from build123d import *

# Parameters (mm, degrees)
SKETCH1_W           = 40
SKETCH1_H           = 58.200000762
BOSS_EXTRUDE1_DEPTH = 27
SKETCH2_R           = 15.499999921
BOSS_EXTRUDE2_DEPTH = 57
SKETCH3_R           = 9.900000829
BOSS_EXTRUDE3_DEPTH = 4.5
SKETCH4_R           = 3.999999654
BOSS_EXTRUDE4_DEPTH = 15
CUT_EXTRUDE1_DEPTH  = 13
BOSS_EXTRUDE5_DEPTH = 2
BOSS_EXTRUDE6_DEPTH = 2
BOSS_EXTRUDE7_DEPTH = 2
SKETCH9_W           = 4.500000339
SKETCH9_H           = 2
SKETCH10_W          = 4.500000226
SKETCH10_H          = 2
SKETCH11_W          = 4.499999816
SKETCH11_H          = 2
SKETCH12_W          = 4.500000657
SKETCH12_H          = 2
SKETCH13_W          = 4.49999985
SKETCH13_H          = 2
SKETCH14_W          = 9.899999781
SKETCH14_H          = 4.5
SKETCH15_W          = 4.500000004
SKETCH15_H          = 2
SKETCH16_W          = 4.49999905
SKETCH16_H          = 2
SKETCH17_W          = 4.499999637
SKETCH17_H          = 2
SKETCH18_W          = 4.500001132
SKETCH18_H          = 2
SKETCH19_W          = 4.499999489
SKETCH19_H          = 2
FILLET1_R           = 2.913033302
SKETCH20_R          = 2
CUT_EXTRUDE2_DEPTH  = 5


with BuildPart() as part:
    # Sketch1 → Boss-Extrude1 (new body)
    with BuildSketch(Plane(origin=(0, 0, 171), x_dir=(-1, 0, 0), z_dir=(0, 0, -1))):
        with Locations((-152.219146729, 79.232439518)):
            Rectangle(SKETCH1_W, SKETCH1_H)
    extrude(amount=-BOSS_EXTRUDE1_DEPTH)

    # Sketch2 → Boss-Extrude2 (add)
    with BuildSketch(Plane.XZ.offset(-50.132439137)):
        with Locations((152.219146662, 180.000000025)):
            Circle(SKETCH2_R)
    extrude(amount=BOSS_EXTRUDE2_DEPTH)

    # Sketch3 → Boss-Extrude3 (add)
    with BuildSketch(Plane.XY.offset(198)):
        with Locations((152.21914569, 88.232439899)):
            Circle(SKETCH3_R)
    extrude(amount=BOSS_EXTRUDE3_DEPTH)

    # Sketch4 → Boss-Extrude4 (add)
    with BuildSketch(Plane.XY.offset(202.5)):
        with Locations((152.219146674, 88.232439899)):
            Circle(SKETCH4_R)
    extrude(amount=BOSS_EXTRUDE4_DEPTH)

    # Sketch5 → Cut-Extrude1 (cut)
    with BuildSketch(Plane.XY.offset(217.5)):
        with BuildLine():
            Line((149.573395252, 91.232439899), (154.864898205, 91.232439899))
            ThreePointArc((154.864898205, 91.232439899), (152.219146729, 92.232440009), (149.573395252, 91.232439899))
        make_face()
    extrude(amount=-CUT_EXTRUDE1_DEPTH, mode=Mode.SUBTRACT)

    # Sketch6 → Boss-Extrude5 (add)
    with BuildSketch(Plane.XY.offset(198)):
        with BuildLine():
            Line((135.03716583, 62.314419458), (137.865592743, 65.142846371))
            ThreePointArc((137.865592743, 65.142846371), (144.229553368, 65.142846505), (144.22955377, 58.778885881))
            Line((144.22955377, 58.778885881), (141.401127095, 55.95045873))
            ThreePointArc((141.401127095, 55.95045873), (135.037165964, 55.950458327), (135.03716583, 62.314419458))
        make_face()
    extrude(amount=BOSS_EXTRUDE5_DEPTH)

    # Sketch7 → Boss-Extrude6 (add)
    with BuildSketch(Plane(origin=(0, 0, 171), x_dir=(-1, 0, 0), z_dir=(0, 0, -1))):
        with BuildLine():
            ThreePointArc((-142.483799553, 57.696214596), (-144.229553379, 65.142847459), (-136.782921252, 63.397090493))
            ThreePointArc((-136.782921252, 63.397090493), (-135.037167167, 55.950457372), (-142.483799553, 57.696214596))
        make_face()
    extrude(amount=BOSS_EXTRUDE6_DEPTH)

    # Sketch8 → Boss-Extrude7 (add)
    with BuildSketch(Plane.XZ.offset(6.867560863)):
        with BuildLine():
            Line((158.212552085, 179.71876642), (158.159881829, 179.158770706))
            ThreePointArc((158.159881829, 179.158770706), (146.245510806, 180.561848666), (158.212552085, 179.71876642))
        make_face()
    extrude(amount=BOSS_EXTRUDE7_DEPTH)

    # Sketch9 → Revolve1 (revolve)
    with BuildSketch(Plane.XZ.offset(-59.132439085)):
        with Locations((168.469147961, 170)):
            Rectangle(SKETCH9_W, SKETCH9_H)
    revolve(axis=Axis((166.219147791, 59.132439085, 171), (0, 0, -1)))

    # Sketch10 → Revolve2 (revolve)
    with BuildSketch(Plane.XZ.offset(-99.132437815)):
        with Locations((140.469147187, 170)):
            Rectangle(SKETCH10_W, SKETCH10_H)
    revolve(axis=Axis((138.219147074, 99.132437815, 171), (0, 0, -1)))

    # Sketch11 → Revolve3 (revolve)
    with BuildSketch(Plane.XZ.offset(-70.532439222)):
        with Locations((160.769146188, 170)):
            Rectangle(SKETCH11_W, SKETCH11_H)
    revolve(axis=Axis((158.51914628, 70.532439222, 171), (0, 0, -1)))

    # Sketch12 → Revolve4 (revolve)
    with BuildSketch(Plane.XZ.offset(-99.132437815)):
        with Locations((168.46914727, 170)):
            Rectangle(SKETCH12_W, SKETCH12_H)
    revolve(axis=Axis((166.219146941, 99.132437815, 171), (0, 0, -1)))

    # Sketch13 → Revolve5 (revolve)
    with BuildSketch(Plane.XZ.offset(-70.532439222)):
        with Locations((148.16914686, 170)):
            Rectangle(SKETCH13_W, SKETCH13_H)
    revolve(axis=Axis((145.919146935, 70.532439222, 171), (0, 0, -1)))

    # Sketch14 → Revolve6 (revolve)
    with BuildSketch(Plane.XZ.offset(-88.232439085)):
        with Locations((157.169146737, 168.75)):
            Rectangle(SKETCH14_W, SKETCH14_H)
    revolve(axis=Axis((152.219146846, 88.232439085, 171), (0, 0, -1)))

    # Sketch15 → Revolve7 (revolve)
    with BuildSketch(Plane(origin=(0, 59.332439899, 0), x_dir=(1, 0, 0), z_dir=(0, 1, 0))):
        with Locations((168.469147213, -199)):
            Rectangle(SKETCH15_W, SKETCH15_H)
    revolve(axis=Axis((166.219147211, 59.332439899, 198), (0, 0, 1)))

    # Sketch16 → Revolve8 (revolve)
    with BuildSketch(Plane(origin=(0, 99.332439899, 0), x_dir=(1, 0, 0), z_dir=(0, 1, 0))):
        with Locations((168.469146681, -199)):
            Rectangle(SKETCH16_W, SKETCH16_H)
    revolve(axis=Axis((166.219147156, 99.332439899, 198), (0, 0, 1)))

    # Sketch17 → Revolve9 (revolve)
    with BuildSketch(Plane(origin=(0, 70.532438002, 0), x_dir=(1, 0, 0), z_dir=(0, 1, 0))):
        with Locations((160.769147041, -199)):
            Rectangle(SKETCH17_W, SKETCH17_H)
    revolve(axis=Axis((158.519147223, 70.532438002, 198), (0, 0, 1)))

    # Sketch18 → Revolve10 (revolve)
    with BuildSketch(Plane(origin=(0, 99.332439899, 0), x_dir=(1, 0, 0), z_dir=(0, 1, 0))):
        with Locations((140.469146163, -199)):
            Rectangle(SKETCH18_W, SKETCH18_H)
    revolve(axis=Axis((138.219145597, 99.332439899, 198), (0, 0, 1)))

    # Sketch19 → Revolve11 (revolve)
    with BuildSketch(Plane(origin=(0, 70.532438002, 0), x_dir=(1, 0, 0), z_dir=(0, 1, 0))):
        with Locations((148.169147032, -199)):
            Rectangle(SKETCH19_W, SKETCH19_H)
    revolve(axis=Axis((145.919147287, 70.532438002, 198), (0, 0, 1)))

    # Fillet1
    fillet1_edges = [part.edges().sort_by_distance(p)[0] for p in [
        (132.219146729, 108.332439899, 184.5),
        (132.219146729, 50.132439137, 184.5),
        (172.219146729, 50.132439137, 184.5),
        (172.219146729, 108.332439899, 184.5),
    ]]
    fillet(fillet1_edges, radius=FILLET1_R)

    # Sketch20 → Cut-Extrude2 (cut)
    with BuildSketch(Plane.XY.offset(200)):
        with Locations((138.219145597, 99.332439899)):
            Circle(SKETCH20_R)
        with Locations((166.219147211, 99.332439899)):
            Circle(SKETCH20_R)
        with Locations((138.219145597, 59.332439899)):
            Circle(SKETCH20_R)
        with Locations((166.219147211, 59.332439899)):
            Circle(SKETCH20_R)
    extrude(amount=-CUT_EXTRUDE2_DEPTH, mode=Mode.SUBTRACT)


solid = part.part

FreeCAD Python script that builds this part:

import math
import FreeCAD as App
import Part
import Sketcher
Q = App.Units.Quantity


def edges_at(feature, points):
    """Names of the edges that pass closest to the given points."""
    edges = feature.Shape.Edges
    near = lambda p: min(range(len(edges)), key=lambda i: edges[i].distToShape(Part.Vertex(*p))[0])
    return sorted({f"Edge{near(p) + 1}" for p in points})


def add_polygon(sketch, points):
    """Adds a closed chain of lines whose ends are joined by coincident constraints."""
    first, n = sketch.GeometryCount, len(points)
    for a, b in zip(points, points[1:] + points[:1]):
        sketch.addGeometry(Part.LineSegment(App.Vector(*a, 0), App.Vector(*b, 0)), False)
    for i in range(n):
        sketch.addConstraint(Sketcher.Constraint("Coincident", first + i, 2, first + (i + 1) % n, 1))

doc = App.newDocument("Part")
params = doc.addObject("Spreadsheet::Sheet", "Params")
for row, (alias, value) in enumerate([
    ("sketch1_width", "40 mm"),
    ("sketch1_height", "58.200001 mm"),
    ("pad1_length", "27 mm"),
    ("sketch2_diameter", "31 mm"),
    ("pad2_length", "57 mm"),
    ("sketch3_diameter", "19.800002 mm"),
    ("pad3_length", "4.5 mm"),
    ("sketch4_diameter", "7.999999 mm"),
    ("pad4_length", "15 mm"),
    ("sketch5_radius", "4 mm"),
    ("pocket1_length", "13 mm"),
    ("sketch6_radius", "4.5 mm"),
    ("sketch6_length", "4 mm"),
    ("pad5_length", "2 mm"),
    ("sketch7_radius", "4.5 mm"),
    ("pad6_length", "2 mm"),
    ("sketch8_radius", "6 mm"),
    ("pad7_length", "2 mm"),
    ("sketch9_height", "2 mm"),
    ("sketch9_width", "4.5 mm"),
    ("revolution_angle", "360 deg"),
    ("sketch10_height", "2 mm"),
    ("sketch10_width", "4.5 mm"),
    ("revolution2_angle", "360 deg"),
    ("sketch11_height", "2 mm"),
    ("sketch11_width", "4.5 mm"),
    ("revolution3_angle", "360 deg"),
    ("sketch12_height", "2 mm"),
    ("sketch12_width", "4.500001 mm"),
    ("revolution4_angle", "360 deg"),
    ("sketch13_height", "2 mm"),
    ("sketch13_width", "4.5 mm"),
    ("revolution5_angle", "360 deg"),
    ("sketch14_width", "9.9 mm"),
    ("sketch14_height", "4.5 mm"),
    ("revolution6_angle", "360 deg"),
    ("sketch15_height", "2 mm"),
    ("sketch15_width", "4.5 mm"),
    ("revolution7_angle", "360 deg"),
    ("sketch16_height", "2 mm"),
    ("sketch16_width", "4.499999 mm"),
    ("revolution8_angle", "360 deg"),
    ("sketch17_height", "2 mm"),
    ("sketch17_width", "4.5 mm"),
    ("revolution9_angle", "360 deg"),
    ("sketch18_height", "2 mm"),
    ("sketch18_width", "4.500001 mm"),
    ("revolution10_angle", "360 deg"),
    ("sketch19_height", "2 mm"),
    ("sketch19_width", "4.499999 mm"),
    ("revolution11_angle", "360 deg"),
    ("fillet_radius", "2.913033 mm"),
    ("sketch20_diameter", "4 mm"),
    ("pocket2_length", "5 mm"),
], start=1):
    params.set(f"A{row}", alias)
    params.set(f"B{row}", "=" + value)
    params.setAlias(f"B{row}", alias)

body = doc.addObject("PartDesign::Body", "Body")

sketch1 = body.newObject("Sketcher::SketchObject", "Sketch")
sketch1.AttachmentSupport = (doc.getObject("XY_Plane"), [""])
sketch1.MapMode = "FlatFace"
sketch1.AttachmentOffset = App.Placement(App.Vector(0, 0, 171), App.Rotation())
add_polygon(sketch1, [(172, 108), (172, 50), (132, 50), (132, 108)])
sketch1.addConstraint([
    Sketcher.Constraint("Vertical", 0),
    Sketcher.Constraint("Horizontal", 1),
    Sketcher.Constraint("Vertical", 2),
    Sketcher.Constraint("Horizontal", 3),
    Sketcher.Constraint("DistanceX", 1, 2, 1, 1, Q("40 mm")),
    Sketcher.Constraint("DistanceY", 0, 2, 0, 1, Q("58.200001 mm")),
    Sketcher.Constraint("DistanceY", -1, 1, 0, 2, Q("50.132439 mm")),
    Sketcher.Constraint("DistanceX", -1, 1, 0, 2, Q("172.219147 mm")),
])
sketch1.setExpression("Constraints[8]", "Params.sketch1_width")
sketch1.setExpression("Constraints[9]", "Params.sketch1_height")
pad1 = body.newObject("PartDesign::Pad", "Pad")
pad1.Profile = sketch1
pad1.setExpression("Length", "Params.pad1_length")

sketch2 = body.newObject("Sketcher::SketchObject", "Sketch001")
sketch2.AttachmentSupport = (doc.getObject("XZ_Plane"), [""])
sketch2.MapMode = "FlatFace"
sketch2.AttachmentOffset = App.Placement(App.Vector(0, 0, -50.132439), App.Rotation())
sketch2.addGeometry(Part.Circle(App.Vector(152, 180, 0), App.Vector(0, 0, 1), 15), False)
sketch2.addConstraint([
    Sketcher.Constraint("Diameter", 0, Q("31 mm")),
    Sketcher.Constraint("DistanceY", -1, 1, 0, 3, Q("180 mm")),
    Sketcher.Constraint("DistanceX", -1, 1, 0, 3, Q("152.219147 mm")),
])
sketch2.setExpression("Constraints[0]", "Params.sketch2_diameter")
pad2 = body.newObject("PartDesign::Pad", "Pad001")
pad2.Profile = sketch2
pad2.setExpression("Length", "Params.pad2_length")

sketch3 = body.newObject("Sketcher::SketchObject", "Sketch002")
sketch3.AttachmentSupport = (doc.getObject("XY_Plane"), [""])
sketch3.MapMode = "FlatFace"
sketch3.AttachmentOffset = App.Placement(App.Vector(0, 0, 198), App.Rotation())
sketch3.addGeometry(Part.Circle(App.Vector(152, 88, 0), App.Vector(0, 0, 1), 10), False)
sketch3.addConstraint([
    Sketcher.Constraint("Diameter", 0, Q("19.800002 mm")),
    Sketcher.Constraint("DistanceY", -1, 1, 0, 3, Q("88.23244 mm")),
    Sketcher.Constraint("DistanceX", -1, 1, 0, 3, Q("152.219146 mm")),
])
sketch3.setExpression("Constraints[0]", "Params.sketch3_diameter")
pad3 = body.newObject("PartDesign::Pad", "Pad002")
pad3.Profile = sketch3
pad3.setExpression("Length", "Params.pad3_length")

sketch4 = body.newObject("Sketcher::SketchObject", "Sketch003")
sketch4.AttachmentSupport = (doc.getObject("XY_Plane"), [""])
sketch4.MapMode = "FlatFace"
sketch4.AttachmentOffset = App.Placement(App.Vector(0, 0, 202.5), App.Rotation())
sketch4.addGeometry(Part.Circle(App.Vector(152.2, 88.2, 0), App.Vector(0, 0, 1), 4), False)
sketch4.addConstraint([
    Sketcher.Constraint("Diameter", 0, Q("7.999999 mm")),
    Sketcher.Constraint("DistanceY", -1, 1, 0, 3, Q("88.23244 mm")),
    Sketcher.Constraint("DistanceX", -1, 1, 0, 3, Q("152.219147 mm")),
])
sketch4.setExpression("Constraints[0]", "Params.sketch4_diameter")
pad4 = body.newObject("PartDesign::Pad", "Pad003")
pad4.Profile = sketch4
pad4.setExpression("Length", "Params.pad4_length")

sketch5 = body.newObject("Sketcher::SketchObject", "Sketch004")
sketch5.AttachmentSupport = (doc.getObject("XY_Plane"), [""])
sketch5.MapMode = "FlatFace"
sketch5.AttachmentOffset = App.Placement(App.Vector(0, 0, 217.5), App.Rotation())
sketch5.addGeometry([
    Part.LineSegment(App.Vector(149.6, 91.2, 0), App.Vector(154.9, 91.2, 0)),
    Part.ArcOfCircle(Part.Circle(App.Vector(152.2, 88.2, 0), App.Vector(0, 0, 1), 4), math.radians(49), math.radians(131)),
], False)
sketch5.addConstraint([
    Sketcher.Constraint("Coincident", 0, 1, 1, 2),
    Sketcher.Constraint("Coincident", 1, 1, 0, 2),
    Sketcher.Constraint("Horizontal", 0),
    Sketcher.Constraint("Radius", 1, Q("4 mm")),
    Sketcher.Constraint("DistanceY", 1, 3, 0, 1, Q("3 mm")),
    Sketcher.Constraint("DistanceX", -1, 1, 1, 1, Q("154.864898 mm")),
    Sketcher.Constraint("DistanceY", -1, 1, 1, 3, Q("88.23244 mm")),
])
sketch5.setExpression("Constraints[3]", "Params.sketch5_radius")
pocket1 = body.newObject("PartDesign::Pocket", "Pocket")
pocket1.Profile = sketch5
pocket1.setExpression("Length", "Params.pocket1_length")

sketch6 = body.newObject("Sketcher::SketchObject", "Sketch005")
sketch6.AttachmentSupport = (doc.getObject("XY_Plane"), [""])
sketch6.MapMode = "FlatFace"
sketch6.AttachmentOffset = App.Placement(App.Vector(0, 0, 198), App.Rotation())
sketch6.addGeometry([
    Part.LineSegment(App.Vector(137.9, 65.1, 0), App.Vector(135, 62.3, 0)),
    Part.ArcOfCircle(Part.Circle(App.Vector(138.2, 59.1, 0), App.Vector(0, 0, 1), 4.5), math.radians(135), math.radians(315)),
    Part.LineSegment(App.Vector(141.4, 56, 0), App.Vector(144.2, 58.8, 0)),
    Part.ArcOfCircle(Part.Circle(App.Vector(141, 62, 0), App.Vector(0, 0, 1), 4.5), math.radians(-45), math.radians(135)),
], False)
sketch6.addConstraint([
    Sketcher.Constraint("Tangent", 0, 2, 1, 1),
    Sketcher.Constraint("Tangent", 1, 2, 2, 1),
    Sketcher.Constraint("Tangent", 2, 2, 3, 1),
    Sketcher.Constraint("Tangent", 3, 2, 0, 1),
    Sketcher.Constraint("Equal", 1, 3),
    Sketcher.Constraint("Radius", 1, Q("4.5 mm")),
    Sketcher.Constraint("Angle", 0, Q("-135 deg")),
    Sketcher.Constraint("Distance", 0, Q("4 mm")),
    Sketcher.Constraint("DistanceY", -1, 1, 1, 3, Q("59.132439 mm")),
    Sketcher.Constraint("DistanceX", -1, 1, 1, 3, Q("138.219146 mm")),
])
sketch6.setExpression("Constraints[5]", "Params.sketch6_radius")
sketch6.setExpression("Constraints[7]", "Params.sketch6_length")
pad5 = body.newObject("PartDesign::Pad", "Pad004")
pad5.Profile = sketch6
pad5.setExpression("Length", "Params.pad5_length")

sketch7 = body.newObject("Sketcher::SketchObject", "Sketch006")
sketch7.AttachmentSupport = (doc.getObject("XY_Plane"), [""])
sketch7.MapMode = "FlatFace"
sketch7.AttachmentOffset = App.Placement(App.Vector(0, 0, 171), App.Rotation())
sketch7.addGeometry([
    Part.ArcOfCircle(Part.Circle(App.Vector(141, 62, 0), App.Vector(0, 0, 1), 4.5), math.radians(-71), math.radians(161)),
    Part.ArcOfCircle(Part.Circle(App.Vector(138.2, 59.1, 0), App.Vector(0, 0, 1), 4.5), math.radians(109), math.radians(341)),
], False)
sketch7.addConstraint([
    Sketcher.Constraint("Coincident", 0, 1, 1, 2),
    Sketcher.Constraint("Coincident", 1, 1, 0, 2),
    Sketcher.Constraint("Equal", 0, 1),
    Sketcher.Constraint("Radius", 0, Q("4.5 mm")),
    Sketcher.Constraint("DistanceX", -1, 1, 0, 1, Q("142.4838 mm")),
    Sketcher.Constraint("DistanceY", -1, 1, 1, 3, Q("59.132439 mm")),
    Sketcher.Constraint("DistanceX", -1, 1, 1, 1, Q("136.782921 mm")),
    Sketcher.Constraint("DistanceY", -1, 1, 1, 1, Q("63.39709 mm")),
])
sketch7.setExpression("Constraints[3]", "Params.sketch7_radius")
pad6 = body.newObject("PartDesign::Pad", "Pad005")
pad6.Profile = sketch7
pad6.setExpression("Length", "Params.pad6_length")
pad6.Reversed = True

sketch8 = body.newObject("Sketcher::SketchObject", "Sketch007")
sketch8.AttachmentSupport = (doc.getObject("XZ_Plane"), [""])
sketch8.MapMode = "FlatFace"
sketch8.AttachmentOffset = App.Placement(App.Vector(0, 0, 6.867561), App.Rotation())
sketch8.addGeometry([
    Part.LineSegment(App.Vector(158.2, 179.2, 0), App.Vector(158.2, 179.7, 0)),
    Part.ArcOfCircle(Part.Circle(App.Vector(152.2, 180, 0), App.Vector(0, 0, 1), 6), math.radians(-3), math.radians(352)),
], False)
sketch8.addConstraint([
    Sketcher.Constraint("Coincident", 0, 1, 1, 2),
    Sketcher.Constraint("Coincident", 1, 1, 0, 2),
    Sketcher.Constraint("Radius", 1, Q("6 mm")),
    Sketcher.Constraint("DistanceY", -1, 1, 1, 3, Q("180 mm")),
    Sketcher.Constraint("DistanceX", -1, 1, 0, 1, Q("158.159882 mm")),
    Sketcher.Constraint("DistanceY", -1, 1, 0, 1, Q("179.158771 mm")),
    Sketcher.Constraint("DistanceX", 0, 1, 1, 1, Q("0.05267 mm")),
])
sketch8.setExpression("Constraints[2]", "Params.sketch8_radius")
pad7 = body.newObject("PartDesign::Pad", "Pad006")
pad7.Profile = sketch8
pad7.setExpression("Length", "Params.pad7_length")

sketch9 = body.newObject("Sketcher::SketchObject", "Sketch008")
sketch9.AttachmentSupport = (doc.getObject("XZ_Plane"), [""])
sketch9.MapMode = "FlatFace"
sketch9.AttachmentOffset = App.Placement(App.Vector(0, 0, -59.132439), App.Rotation())
add_polygon(sketch9, [(166.2, 171), (166.2, 169), (170.7, 169), (170.7, 171)])
sketch9.addGeometry(Part.LineSegment(App.Vector(166.2, 171, 0), App.Vector(166.2, 169, 0)), True)
sketch9.addConstraint([
    Sketcher.Constraint("Vertical", 0),
    Sketcher.Constraint("Horizontal", 1),
    Sketcher.Constraint("Vertical", 2),
    Sketcher.Constraint("Horizontal", 3),
    Sketcher.Constraint("Vertical", 4),
    Sketcher.Constraint("Coincident", 4, 1, 3, 2),
    Sketcher.Constraint("Horizontal", 1, 2, 4, 2),
    Sketcher.Constraint("DistanceY", 0, 2, 0, 1, Q("2 mm")),
    Sketcher.Constraint("DistanceX", 1, 1, 1, 2, Q("4.5 mm")),
    Sketcher.Constraint("DistanceY", -1, 1, 0, 2, Q("169 mm")),
    Sketcher.Constraint("DistanceX", -1, 1, 1, 2, Q("170.719148 mm")),
])
sketch9.setExpression("Constraints[11]", "Params.sketch9_height")
sketch9.setExpression("Constraints[12]", "Params.sketch9_width")
revolution = body.newObject("PartDesign::Revolution", "Revolution")
revolution.Profile = sketch9
revolution.ReferenceAxis = (sketch9, ["Axis0"])
revolution.setExpression("Angle", "Params.revolution_angle")

sketch10 = body.newObject("Sketcher::SketchObject", "Sketch009")
sketch10.AttachmentSupport = (doc.getObject("XZ_Plane"), [""])
sketch10.MapMode = "FlatFace"
sketch10.AttachmentOffset = App.Placement(App.Vector(0, 0, -99.132438), App.Rotation())
add_polygon(sketch10, [(138.2, 171), (138.2, 169), (142.7, 169), (142.7, 171)])
sketch10.addGeometry(Part.LineSegment(App.Vector(138.2, 171, 0), App.Vector(138.2, 169, 0)), True)
sketch10.addConstraint([
    Sketcher.Constraint("Vertical", 0),
    Sketcher.Constraint("Horizontal", 1),
    Sketcher.Constraint("Vertical", 2),
    Sketcher.Constraint("Horizontal", 3),
    Sketcher.Constraint("Vertical", 4),
    Sketcher.Constraint("Coincident", 4, 1, 3, 2),
    Sketcher.Constraint("Horizontal", 1, 2, 4, 2),
    Sketcher.Constraint("DistanceY", 0, 2, 0, 1, Q("2 mm")),
    Sketcher.Constraint("DistanceX", 1, 1, 1, 2, Q("4.5 mm")),
    Sketcher.Constraint("DistanceY", -1, 1, 0, 2, Q("169 mm")),
    Sketcher.Constraint("DistanceX", -1, 1, 0, 2, Q("138.219147 mm")),
])
sketch10.setExpression("Constraints[11]", "Params.sketch10_height")
sketch10.setExpression("Constraints[12]", "Params.sketch10_width")
revolution2 = body.newObject("PartDesign::Revolution", "Revolution001")
revolution2.Profile = sketch10
revolution2.ReferenceAxis = (sketch10, ["Axis0"])
revolution2.setExpression("Angle", "Params.revolution2_angle")

sketch11 = body.newObject("Sketcher::SketchObject", "Sketch010")
sketch11.AttachmentSupport = (doc.getObject("XZ_Plane"), [""])
sketch11.MapMode = "FlatFace"
sketch11.AttachmentOffset = App.Placement(App.Vector(0, 0, -70.532439), App.Rotation())
add_polygon(sketch11, [(158.5, 171), (158.5, 169), (163, 169), (163, 171)])
sketch11.addGeometry(Part.LineSegment(App.Vector(158.5, 171, 0), App.Vector(158.5, 169, 0)), True)
sketch11.addConstraint([
    Sketcher.Constraint("Vertical", 0),
    Sketcher.Constraint("Horizontal", 1),
    Sketcher.Constraint("Vertical", 2),
    Sketcher.Constraint("Horizontal", 3),
    Sketcher.Constraint("Vertical", 4),
    Sketcher.Constraint("Coincident", 4, 1, 3, 2),
    Sketcher.Constraint("Horizontal", 1, 2, 4, 2),
    Sketcher.Constraint("DistanceY", 0, 2, 0, 1, Q("2 mm")),
    Sketcher.Constraint("DistanceX", 1, 1, 1, 2, Q("4.5 mm")),
    Sketcher.Constraint("DistanceY", -1, 1, 0, 2, Q("169 mm")),
    Sketcher.Constraint("DistanceX", -1, 1, 0, 2, Q("158.519146 mm")),
])
sketch11.setExpression("Constraints[11]", "Params.sketch11_height")
sketch11.setExpression("Constraints[12]", "Params.sketch11_width")
revolution3 = body.newObject("PartDesign::Revolution", "Revolution002")
revolution3.Profile = sketch11
revolution3.ReferenceAxis = (sketch11, ["Axis0"])
revolution3.setExpression("Angle", "Params.revolution3_angle")

sketch12 = body.newObject("Sketcher::SketchObject", "Sketch011")
sketch12.AttachmentSupport = (doc.getObject("XZ_Plane"), [""])
sketch12.MapMode = "FlatFace"
sketch12.AttachmentOffset = App.Placement(App.Vector(0, 0, -99.132438), App.Rotation())
add_polygon(sketch12, [(166.2, 171), (166.2, 169), (170.7, 169), (170.7, 171)])
sketch12.addGeometry(Part.LineSegment(App.Vector(166.2, 171, 0), App.Vector(166.2, 169, 0)), True)
sketch12.addConstraint([
    Sketcher.Constraint("Vertical", 0),
    Sketcher.Constraint("Horizontal", 1),
    Sketcher.Constraint("Vertical", 2),
    Sketcher.Constraint("Horizontal", 3),
    Sketcher.Constraint("Vertical", 4),
    Sketcher.Constraint("Coincident", 4, 1, 3, 2),
    Sketcher.Constraint("Horizontal", 1, 2, 4, 2),
    Sketcher.Constraint("DistanceY", 0, 2, 0, 1, Q("2 mm")),
    Sketcher.Constraint("DistanceX", 1, 1, 1, 2, Q("4.500001 mm")),
    Sketcher.Constraint("DistanceY", -1, 1, 0, 2, Q("169 mm")),
    Sketcher.Constraint("DistanceX", -1, 1, 0, 2, Q("166.219147 mm")),
])
sketch12.setExpression("Constraints[11]", "Params.sketch12_height")
sketch12.setExpression("Constraints[12]", "Params.sketch12_width")
revolution4 = body.newObject("PartDesign::Revolution", "Revolution003")
revolution4.Profile = sketch12
revolution4.ReferenceAxis = (sketch12, ["Axis0"])
revolution4.setExpression("Angle", "Params.revolution4_angle")

sketch13 = body.newObject("Sketcher::SketchObject", "Sketch012")
sketch13.AttachmentSupport = (doc.getObject("XZ_Plane"), [""])
sketch13.MapMode = "FlatFace"
sketch13.AttachmentOffset = App.Placement(App.Vector(0, 0, -70.532439), App.Rotation())
add_polygon(sketch13, [(145.9, 171), (145.9, 169), (150.4, 169), (150.4, 171)])
sketch13.addGeometry(Part.LineSegment(App.Vector(145.9, 171, 0), App.Vector(145.9, 169, 0)), True)
sketch13.addConstraint([
    Sketcher.Constraint("Vertical", 0),
    Sketcher.Constraint("Horizontal", 1),
    Sketcher.Constraint("Vertical", 2),
    Sketcher.Constraint("Horizontal", 3),
    Sketcher.Constraint("Vertical", 4),
    Sketcher.Constraint("Coincident", 4, 1, 3, 2),
    Sketcher.Constraint("Horizontal", 1, 2, 4, 2),
    Sketcher.Constraint("DistanceY", 0, 2, 0, 1, Q("2 mm")),
    Sketcher.Constraint("DistanceX", 1, 1, 1, 2, Q("4.5 mm")),
    Sketcher.Constraint("DistanceY", -1, 1, 0, 2, Q("169 mm")),
    Sketcher.Constraint("DistanceX", -1, 1, 0, 2, Q("145.919147 mm")),
])
sketch13.setExpression("Constraints[11]", "Params.sketch13_height")
sketch13.setExpression("Constraints[12]", "Params.sketch13_width")
revolution5 = body.newObject("PartDesign::Revolution", "Revolution004")
revolution5.Profile = sketch13
revolution5.ReferenceAxis = (sketch13, ["Axis0"])
revolution5.setExpression("Angle", "Params.revolution5_angle")

sketch14 = body.newObject("Sketcher::SketchObject", "Sketch013")
sketch14.AttachmentSupport = (doc.getObject("XZ_Plane"), [""])
sketch14.MapMode = "FlatFace"
sketch14.AttachmentOffset = App.Placement(App.Vector(0, 0, -88.232439), App.Rotation())
add_polygon(sketch14, [(152.2, 171), (152.2, 166.5), (162.1, 166.5), (162.1, 171)])
sketch14.addGeometry(Part.LineSegment(App.Vector(152.2, 171, 0), App.Vector(152.2, 166.5, 0)), True)
sketch14.addConstraint([
    Sketcher.Constraint("Vertical", 0),
    Sketcher.Constraint("Horizontal", 1),
    Sketcher.Constraint("Vertical", 2),
    Sketcher.Constraint("Horizontal", 3),
    Sketcher.Constraint("Vertical", 4),
    Sketcher.Constraint("Coincident", 4, 1, 3, 2),
    Sketcher.Constraint("Horizontal", 1, 2, 4, 2),
    Sketcher.Constraint("DistanceX", 1, 1, 1, 2, Q("9.9 mm")),
    Sketcher.Constraint("DistanceY", 0, 2, 0, 1, Q("4.5 mm")),
    Sketcher.Constraint("DistanceY", -1, 1, 2, 2, Q("171 mm")),
    Sketcher.Constraint("DistanceX", -1, 1, 0, 2, Q("152.219147 mm")),
])
sketch14.setExpression("Constraints[11]", "Params.sketch14_width")
sketch14.setExpression("Constraints[12]", "Params.sketch14_height")
revolution6 = body.newObject("PartDesign::Revolution", "Revolution005")
revolution6.Profile = sketch14
revolution6.ReferenceAxis = (sketch14, ["Axis0"])
revolution6.setExpression("Angle", "Params.revolution6_angle")

sketch15 = body.newObject("Sketcher::SketchObject", "Sketch014")
sketch15.AttachmentSupport = (doc.getObject("XZ_Plane"), [""])
sketch15.MapMode = "FlatFace"
sketch15.AttachmentOffset = App.Placement(App.Vector(0, 0, -59.33244), App.Rotation())
add_polygon(sketch15, [(166.2, 198), (166.2, 200), (170.7, 200), (170.7, 198)])
sketch15.addGeometry(Part.LineSegment(App.Vector(166.2, 198, 0), App.Vector(166.2, 200, 0)), True)
sketch15.addConstraint([
    Sketcher.Constraint("Vertical", 0),
    Sketcher.Constraint("Horizontal", 1),
    Sketcher.Constraint("Vertical", 2),
    Sketcher.Constraint("Horizontal", 3),
    Sketcher.Constraint("Vertical", 4),
    Sketcher.Constraint("Coincident", 4, 1, 3, 2),
    Sketcher.Constraint("Horizontal", 1, 2, 4, 2),
    Sketcher.Constraint("DistanceY", 0, 1, 0, 2, Q("2 mm")),
    Sketcher.Constraint("DistanceX", 1, 1, 1, 2, Q("4.5 mm")),
    Sketcher.Constraint("DistanceY", -1, 1, 0, 2, Q("200 mm")),
    Sketcher.Constraint("DistanceX", -1, 1, 0, 2, Q("166.219147 mm")),
])
sketch15.setExpression("Constraints[11]", "Params.sketch15_height")
sketch15.setExpression("Constraints[12]", "Params.sketch15_width")
revolution7 = body.newObject("PartDesign::Revolution", "Revolution006")
revolution7.Profile = sketch15
revolution7.ReferenceAxis = (sketch15, ["Axis0"])
revolution7.setExpression("Angle", "Params.revolution7_angle")

sketch16 = body.newObject("Sketcher::SketchObject", "Sketch015")
sketch16.AttachmentSupport = (doc.getObject("XZ_Plane"), [""])
sketch16.MapMode = "FlatFace"
sketch16.AttachmentOffset = App.Placement(App.Vector(0, 0, -99.33244), App.Rotation())
add_polygon(sketch16, [(166.2, 198), (166.2, 200), (170.7, 200), (170.7, 198)])
sketch16.addGeometry(Part.LineSegment(App.Vector(166.2, 198, 0), App.Vector(166.2, 200, 0)), True)
sketch16.addConstraint([
    Sketcher.Constraint("Vertical", 0),
    Sketcher.Constraint("Horizontal", 1),
    Sketcher.Constraint("Vertical", 2),
    Sketcher.Constraint("Horizontal", 3),
    Sketcher.Constraint("Vertical", 4),
    Sketcher.Constraint("Coincident", 4, 1, 3, 2),
    Sketcher.Constraint("Horizontal", 1, 2, 4, 2),
    Sketcher.Constraint("DistanceY", 0, 1, 0, 2, Q("2 mm")),
    Sketcher.Constraint("DistanceX", 1, 1, 1, 2, Q("4.499999 mm")),
    Sketcher.Constraint("DistanceY", -1, 1, 0, 2, Q("200 mm")),
    Sketcher.Constraint("DistanceX", -1, 1, 0, 2, Q("166.219147 mm")),
])
sketch16.setExpression("Constraints[11]", "Params.sketch16_height")
sketch16.setExpression("Constraints[12]", "Params.sketch16_width")
revolution8 = body.newObject("PartDesign::Revolution", "Revolution007")
revolution8.Profile = sketch16
revolution8.ReferenceAxis = (sketch16, ["Axis0"])
revolution8.setExpression("Angle", "Params.revolution8_angle")

sketch17 = body.newObject("Sketcher::SketchObject", "Sketch016")
sketch17.AttachmentSupport = (doc.getObject("XZ_Plane"), [""])
sketch17.MapMode = "FlatFace"
sketch17.AttachmentOffset = App.Placement(App.Vector(0, 0, -70.532438), App.Rotation())
add_polygon(sketch17, [(158.5, 198), (158.5, 200), (163, 200), (163, 198)])
sketch17.addGeometry(Part.LineSegment(App.Vector(158.5, 198, 0), App.Vector(158.5, 200, 0)), True)
sketch17.addConstraint([
    Sketcher.Constraint("Vertical", 0),
    Sketcher.Constraint("Horizontal", 1),
    Sketcher.Constraint("Vertical", 2),
    Sketcher.Constraint("Horizontal", 3),
    Sketcher.Constraint("Vertical", 4),
    Sketcher.Constraint("Coincident", 4, 1, 3, 2),
    Sketcher.Constraint("Horizontal", 1, 2, 4, 2),
    Sketcher.Constraint("DistanceY", 0, 1, 0, 2, Q("2 mm")),
    Sketcher.Constraint("DistanceX", 1, 1, 1, 2, Q("4.5 mm")),
    Sketcher.Constraint("DistanceY", -1, 1, 0, 2, Q("200 mm")),
    Sketcher.Constraint("DistanceX", -1, 1, 0, 2, Q("158.519147 mm")),
])
sketch17.setExpression("Constraints[11]", "Params.sketch17_height")
sketch17.setExpression("Constraints[12]", "Params.sketch17_width")
revolution9 = body.newObject("PartDesign::Revolution", "Revolution008")
revolution9.Profile = sketch17
revolution9.ReferenceAxis = (sketch17, ["Axis0"])
revolution9.setExpression("Angle", "Params.revolution9_angle")

sketch18 = body.newObject("Sketcher::SketchObject", "Sketch017")
sketch18.AttachmentSupport = (doc.getObject("XZ_Plane"), [""])
sketch18.MapMode = "FlatFace"
sketch18.AttachmentOffset = App.Placement(App.Vector(0, 0, -99.33244), App.Rotation())
add_polygon(sketch18, [(138.2, 198), (138.2, 200), (142.7, 200), (142.7, 198)])
sketch18.addGeometry(Part.LineSegment(App.Vector(138.2, 198, 0), App.Vector(138.2, 200, 0)), True)
sketch18.addConstraint([
    Sketcher.Constraint("Vertical", 0),
    Sketcher.Constraint("Horizontal", 1),
    Sketcher.Constraint("Vertical", 2),
    Sketcher.Constraint("Horizontal", 3),
    Sketcher.Constraint("Vertical", 4),
    Sketcher.Constraint("Coincident", 4, 1, 3, 2),
    Sketcher.Constraint("Horizontal", 1, 2, 4, 2),
    Sketcher.Constraint("DistanceY", 0, 1, 0, 2, Q("2 mm")),
    Sketcher.Constraint("DistanceX", 1, 1, 1, 2, Q("4.500001 mm")),
    Sketcher.Constraint("DistanceY", -1, 1, 0, 2, Q("200 mm")),
    Sketcher.Constraint("DistanceX", -1, 1, 0, 2, Q("138.219146 mm")),
])
sketch18.setExpression("Constraints[11]", "Params.sketch18_height")
sketch18.setExpression("Constraints[12]", "Params.sketch18_width")
revolution10 = body.newObject("PartDesign::Revolution", "Revolution009")
revolution10.Profile = sketch18
revolution10.ReferenceAxis = (sketch18, ["Axis0"])
revolution10.setExpression("Angle", "Params.revolution10_angle")

sketch19 = body.newObject("Sketcher::SketchObject", "Sketch018")
sketch19.AttachmentSupport = (doc.getObject("XZ_Plane"), [""])
sketch19.MapMode = "FlatFace"
sketch19.AttachmentOffset = App.Placement(App.Vector(0, 0, -70.532438), App.Rotation())
add_polygon(sketch19, [(145.9, 198), (145.9, 200), (150.4, 200), (150.4, 198)])
sketch19.addGeometry(Part.LineSegment(App.Vector(145.9, 198, 0), App.Vector(145.9, 200, 0)), True)
sketch19.addConstraint([
    Sketcher.Constraint("Vertical", 0),
    Sketcher.Constraint("Horizontal", 1),
    Sketcher.Constraint("Vertical", 2),
    Sketcher.Constraint("Horizontal", 3),
    Sketcher.Constraint("Vertical", 4),
    Sketcher.Constraint("Coincident", 4, 1, 3, 2),
    Sketcher.Constraint("Horizontal", 1, 2, 4, 2),
    Sketcher.Constraint("DistanceY", 0, 1, 0, 2, Q("2 mm")),
    Sketcher.Constraint("DistanceX", 1, 1, 1, 2, Q("4.499999 mm")),
    Sketcher.Constraint("DistanceY", -1, 1, 0, 2, Q("200 mm")),
    Sketcher.Constraint("DistanceX", -1, 1, 0, 2, Q("145.919147 mm")),
])
sketch19.setExpression("Constraints[11]", "Params.sketch19_height")
sketch19.setExpression("Constraints[12]", "Params.sketch19_width")
revolution11 = body.newObject("PartDesign::Revolution", "Revolution010")
revolution11.Profile = sketch19
revolution11.ReferenceAxis = (sketch19, ["Axis0"])
revolution11.setExpression("Angle", "Params.revolution11_angle")
doc.recompute()

fillet = body.newObject("PartDesign::Fillet", "Fillet")
fillet.Base = (revolution11, edges_at(revolution11, [
    (132.219, 108.332, 184.5),
    (132.219, 50.132, 184.5),
    (172.219, 50.132, 184.5),
    (172.219, 108.332, 184.5),
]))
fillet.setExpression("Radius", "Params.fillet_radius")

sketch20 = body.newObject("Sketcher::SketchObject", "Sketch019")
sketch20.AttachmentSupport = (doc.getObject("XY_Plane"), [""])
sketch20.MapMode = "FlatFace"
sketch20.AttachmentOffset = App.Placement(App.Vector(0, 0, 200), App.Rotation())
sketch20.addGeometry([
    Part.Circle(App.Vector(138.2, 99.3, 0), App.Vector(0, 0, 1), 2),
    Part.Circle(App.Vector(166.2, 99.3, 0), App.Vector(0, 0, 1), 2),
    Part.Circle(App.Vector(138.2, 59.3, 0), App.Vector(0, 0, 1), 2),
    Part.Circle(App.Vector(166.2, 59.3, 0), App.Vector(0, 0, 1), 2),
], False)
sketch20.addConstraint([
    Sketcher.Constraint("Equal", 0, 1),
    Sketcher.Constraint("Equal", 1, 2),
    Sketcher.Constraint("Equal", 2, 3),
    Sketcher.Constraint("Horizontal", 0, 3, 1, 3),
    Sketcher.Constraint("Horizontal", 2, 3, 3, 3),
    Sketcher.Constraint("Vertical", 0, 3, 2, 3),
    Sketcher.Constraint("Vertical", 1, 3, 3, 3),
    Sketcher.Constraint("Diameter", 0, Q("4 mm")),
    Sketcher.Constraint("DistanceX", 0, 3, 1, 3, Q("28.000002 mm")),
    Sketcher.Constraint("DistanceY", 2, 3, 0, 3, Q("40 mm")),
    Sketcher.Constraint("DistanceY", -1, 1, 0, 3, Q("99.33244 mm")),
    Sketcher.Constraint("DistanceX", -1, 1, 0, 3, Q("138.219146 mm")),
])
sketch20.setExpression("Constraints[7]", "Params.sketch20_diameter")
pocket2 = body.newObject("PartDesign::Pocket", "Pocket001")
pocket2.Profile = sketch20
pocket2.setExpression("Length", "Params.pocket2_length")

doc.recompute()
